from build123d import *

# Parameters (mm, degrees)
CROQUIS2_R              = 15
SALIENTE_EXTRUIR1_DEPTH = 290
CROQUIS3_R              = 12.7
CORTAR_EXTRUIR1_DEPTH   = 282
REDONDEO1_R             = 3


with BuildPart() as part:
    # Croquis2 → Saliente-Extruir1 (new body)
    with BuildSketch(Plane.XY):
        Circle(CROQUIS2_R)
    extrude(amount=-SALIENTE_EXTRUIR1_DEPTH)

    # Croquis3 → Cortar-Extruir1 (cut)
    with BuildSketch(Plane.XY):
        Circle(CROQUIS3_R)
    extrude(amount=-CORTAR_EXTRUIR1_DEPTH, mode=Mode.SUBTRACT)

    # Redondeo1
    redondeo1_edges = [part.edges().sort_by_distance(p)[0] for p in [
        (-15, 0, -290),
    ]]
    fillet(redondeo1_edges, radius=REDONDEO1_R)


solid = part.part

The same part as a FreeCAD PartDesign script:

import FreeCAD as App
import Part
import Sketcher


def edges_at(feature, points):
    """Names of the edges that pass closest to the given points."""
    edges = feature.Shape.Edges
    near = lambda p: min(range(len(edges)), key=lambda i: edges[i].distToShape(Part.Vertex(*p))[0])
    return sorted({f"Edge{near(p) + 1}" for p in points})

doc = App.newDocument("Part")
params = doc.addObject("Spreadsheet::Sheet", "Params")
for row, (alias, value) in enumerate([
    ("sketch1_diameter", "30 mm"),
    ("pad1_length", "290 mm"),
    ("sketch2_diameter", "25.4 mm"),
    ("pocket1_length", "282 mm"),
    ("fillet_radius", "3 mm"),
], start=1):
    params.set(f"A{row}", alias)
    params.set(f"B{row}", "=" + value)
    params.setAlias(f"B{row}", alias)

body = doc.addObject("PartDesign::Body", "Body")

# Sketch on XY plane
sketch1 = body.newObject("Sketcher::SketchObject", "Sketch")
sketch1.AttachmentSupport = (doc.getObject("XY_Plane"), [""])
sketch1.MapMode = "FlatFace"
sketch1.addGeometry(Part.Circle(App.Vector(0, 0, 0), App.Vector(0, 0, 1), 15), False)
sketch1.addConstraint(Sketcher.Constraint("Coincident", 0, 3, -1, 1))
sketch1.addConstraint(Sketcher.Constraint("Diameter", 0, 30.0))
sketch1.setExpression("Constraints[1]", "Params.sketch1_diameter")
pad1 = body.newObject("PartDesign::Pad", "Pad")
pad1.Profile = sketch1
pad1.setExpression("Length", "Params.pad1_length")
pad1.Reversed = True

# Sketch on XY plane
sketch2 = body.newObject("Sketcher::SketchObject", "Sketch001")
sketch2.AttachmentSupport = (doc.getObject("XY_Plane"), [""])
sketch2.MapMode = "FlatFace"
sketch2.addGeometry(Part.Circle(App.Vector(0, 0, 0), App.Vector(0, 0, 1), 13), False)
sketch2.addConstraint(Sketcher.Constraint("Coincident", 0, 3, -1, 1))
sketch2.addConstraint(Sketcher.Constraint("Diameter", 0, 25.4))
sketch2.setExpression("Constraints[1]", "Params.sketch2_diameter")
pocket1 = body.newObject("PartDesign::Pocket", "Pocket")
pocket1.Profile = sketch2
pocket1.setExpression("Length", "Params.pocket1_length")
doc.recompute()

fillet = body.newObject("PartDesign::Fillet", "Fillet")
fillet.Base = (pocket1, edges_at(pocket1, [(-15, 0, -290)]))
fillet.setExpression("Radius", "Params.fillet_radius")

doc.recompute()
